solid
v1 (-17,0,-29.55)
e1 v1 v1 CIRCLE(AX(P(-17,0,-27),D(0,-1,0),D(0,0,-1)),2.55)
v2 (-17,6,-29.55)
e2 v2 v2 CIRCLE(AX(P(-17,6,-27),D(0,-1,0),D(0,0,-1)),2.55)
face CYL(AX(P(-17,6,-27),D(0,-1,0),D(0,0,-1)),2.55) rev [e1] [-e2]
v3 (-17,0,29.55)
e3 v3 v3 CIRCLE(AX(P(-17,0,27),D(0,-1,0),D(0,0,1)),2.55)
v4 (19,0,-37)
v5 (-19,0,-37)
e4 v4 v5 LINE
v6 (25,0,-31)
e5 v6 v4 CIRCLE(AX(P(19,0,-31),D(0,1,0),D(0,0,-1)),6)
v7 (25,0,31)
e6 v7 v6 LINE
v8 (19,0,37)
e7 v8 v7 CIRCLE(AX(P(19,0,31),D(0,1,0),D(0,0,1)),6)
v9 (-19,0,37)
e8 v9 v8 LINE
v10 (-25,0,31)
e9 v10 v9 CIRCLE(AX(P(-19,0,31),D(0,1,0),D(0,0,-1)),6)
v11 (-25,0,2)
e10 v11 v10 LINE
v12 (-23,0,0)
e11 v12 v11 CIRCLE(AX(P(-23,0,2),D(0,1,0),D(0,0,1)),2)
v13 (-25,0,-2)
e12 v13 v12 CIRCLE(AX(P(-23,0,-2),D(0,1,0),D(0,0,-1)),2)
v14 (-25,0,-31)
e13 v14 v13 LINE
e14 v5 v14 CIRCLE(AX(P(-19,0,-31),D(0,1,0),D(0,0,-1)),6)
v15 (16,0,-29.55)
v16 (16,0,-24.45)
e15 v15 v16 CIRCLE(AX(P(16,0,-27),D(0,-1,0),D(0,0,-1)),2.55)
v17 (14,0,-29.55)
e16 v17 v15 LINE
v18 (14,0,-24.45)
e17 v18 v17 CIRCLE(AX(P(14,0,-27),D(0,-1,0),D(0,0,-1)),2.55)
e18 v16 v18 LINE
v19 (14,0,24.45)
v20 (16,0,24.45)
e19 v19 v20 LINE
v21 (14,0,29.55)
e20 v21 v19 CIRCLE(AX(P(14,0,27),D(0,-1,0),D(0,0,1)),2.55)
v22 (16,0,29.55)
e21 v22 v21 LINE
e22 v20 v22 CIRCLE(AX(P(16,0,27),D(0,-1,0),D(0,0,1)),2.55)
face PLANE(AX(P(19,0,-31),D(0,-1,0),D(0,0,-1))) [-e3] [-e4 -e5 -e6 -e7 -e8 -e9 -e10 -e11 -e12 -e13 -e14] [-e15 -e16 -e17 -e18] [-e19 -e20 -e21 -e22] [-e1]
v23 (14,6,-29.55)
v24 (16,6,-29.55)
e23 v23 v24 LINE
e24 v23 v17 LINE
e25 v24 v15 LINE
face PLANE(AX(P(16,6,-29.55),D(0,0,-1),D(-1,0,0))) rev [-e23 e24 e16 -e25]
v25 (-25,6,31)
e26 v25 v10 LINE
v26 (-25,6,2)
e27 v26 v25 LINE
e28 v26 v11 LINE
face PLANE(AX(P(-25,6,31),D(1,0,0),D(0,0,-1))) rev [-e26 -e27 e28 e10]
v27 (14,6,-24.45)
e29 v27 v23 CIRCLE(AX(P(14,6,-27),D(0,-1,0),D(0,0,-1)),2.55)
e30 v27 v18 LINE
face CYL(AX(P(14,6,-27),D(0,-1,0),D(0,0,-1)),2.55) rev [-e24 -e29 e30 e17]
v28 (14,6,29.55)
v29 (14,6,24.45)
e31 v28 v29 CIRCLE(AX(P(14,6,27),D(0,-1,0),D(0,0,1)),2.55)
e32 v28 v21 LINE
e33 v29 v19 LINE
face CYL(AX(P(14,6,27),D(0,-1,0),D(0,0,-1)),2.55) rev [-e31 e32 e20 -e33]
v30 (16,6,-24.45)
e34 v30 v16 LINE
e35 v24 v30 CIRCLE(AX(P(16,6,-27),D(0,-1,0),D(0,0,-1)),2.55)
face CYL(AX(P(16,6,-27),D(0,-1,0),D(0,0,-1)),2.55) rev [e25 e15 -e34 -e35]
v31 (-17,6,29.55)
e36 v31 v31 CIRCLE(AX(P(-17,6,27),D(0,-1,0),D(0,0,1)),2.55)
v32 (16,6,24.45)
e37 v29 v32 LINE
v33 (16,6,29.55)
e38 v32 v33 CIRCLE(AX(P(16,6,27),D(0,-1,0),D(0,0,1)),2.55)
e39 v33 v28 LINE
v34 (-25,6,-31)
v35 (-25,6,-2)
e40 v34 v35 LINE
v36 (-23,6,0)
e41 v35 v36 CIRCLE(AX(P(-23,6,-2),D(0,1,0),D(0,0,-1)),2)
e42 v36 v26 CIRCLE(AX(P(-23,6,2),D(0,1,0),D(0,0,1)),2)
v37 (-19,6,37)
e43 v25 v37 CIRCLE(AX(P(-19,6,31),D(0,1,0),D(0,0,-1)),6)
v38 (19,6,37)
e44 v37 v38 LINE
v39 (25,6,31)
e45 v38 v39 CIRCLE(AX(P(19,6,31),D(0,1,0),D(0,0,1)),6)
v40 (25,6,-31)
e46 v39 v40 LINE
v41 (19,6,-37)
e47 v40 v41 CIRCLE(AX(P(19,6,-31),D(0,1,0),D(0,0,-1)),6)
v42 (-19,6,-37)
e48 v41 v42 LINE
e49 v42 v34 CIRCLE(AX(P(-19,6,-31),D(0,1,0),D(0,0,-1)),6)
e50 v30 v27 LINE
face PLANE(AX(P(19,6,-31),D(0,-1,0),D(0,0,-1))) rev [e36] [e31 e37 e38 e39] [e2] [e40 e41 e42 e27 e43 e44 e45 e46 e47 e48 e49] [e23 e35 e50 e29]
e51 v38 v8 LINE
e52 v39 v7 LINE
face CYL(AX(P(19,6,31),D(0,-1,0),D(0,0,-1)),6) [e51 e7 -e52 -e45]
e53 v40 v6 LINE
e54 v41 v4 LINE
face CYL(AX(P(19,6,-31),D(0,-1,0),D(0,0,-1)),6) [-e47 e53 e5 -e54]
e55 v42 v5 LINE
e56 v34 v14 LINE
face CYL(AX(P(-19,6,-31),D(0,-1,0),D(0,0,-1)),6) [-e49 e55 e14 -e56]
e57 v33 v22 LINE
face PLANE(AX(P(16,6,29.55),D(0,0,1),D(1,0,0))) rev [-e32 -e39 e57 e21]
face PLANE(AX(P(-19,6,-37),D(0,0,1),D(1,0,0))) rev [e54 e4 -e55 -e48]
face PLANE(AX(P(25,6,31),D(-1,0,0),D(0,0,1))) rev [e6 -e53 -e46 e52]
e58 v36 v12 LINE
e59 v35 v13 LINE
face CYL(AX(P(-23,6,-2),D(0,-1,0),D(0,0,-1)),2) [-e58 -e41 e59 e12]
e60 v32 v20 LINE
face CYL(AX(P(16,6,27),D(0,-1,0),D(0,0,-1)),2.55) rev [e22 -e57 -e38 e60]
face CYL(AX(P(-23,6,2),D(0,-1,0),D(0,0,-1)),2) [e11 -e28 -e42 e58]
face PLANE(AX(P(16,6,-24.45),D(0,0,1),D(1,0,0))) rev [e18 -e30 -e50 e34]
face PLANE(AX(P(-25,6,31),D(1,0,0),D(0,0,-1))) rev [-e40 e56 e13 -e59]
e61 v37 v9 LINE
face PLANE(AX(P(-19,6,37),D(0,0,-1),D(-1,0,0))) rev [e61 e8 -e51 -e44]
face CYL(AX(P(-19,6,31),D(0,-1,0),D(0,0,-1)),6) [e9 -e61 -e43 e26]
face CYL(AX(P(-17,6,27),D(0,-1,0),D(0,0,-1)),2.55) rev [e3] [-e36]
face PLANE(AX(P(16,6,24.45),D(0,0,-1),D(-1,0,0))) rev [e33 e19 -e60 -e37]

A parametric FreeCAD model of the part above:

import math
import FreeCAD as App
import Part
import Sketcher
from FreeCAD import Vector
Q = App.Units.Quantity

doc = App.newDocument("Part")
body = doc.addObject("PartDesign::Body", "Body")

sketch1 = body.newObject("Sketcher::SketchObject", "Sketch")
sketch1.AttachmentSupport = (doc.getObject("XZ_Plane"), [""])
sketch1.MapMode = "FlatFace"
sketch1.addGeometry(Part.LineSegment(Vector(-19, 37, 0), Vector(19, 37, 0)), False)
sketch1.addGeometry(Part.ArcOfCircle(Part.Circle(Vector(19, 31, 0), Vector(0, 0, 1), 6), math.radians(0), math.radians(90)), False)
sketch1.addGeometry(Part.LineSegment(Vector(25, 31, 0), Vector(25, -31, 0)), False)
sketch1.addGeometry(Part.ArcOfCircle(Part.Circle(Vector(19, -31, 0), Vector(0, 0, 1), 6), math.radians(-90), math.radians(0)), False)
sketch1.addGeometry(Part.LineSegment(Vector(19, -37, 0), Vector(-19, -37, 0)), False)
sketch1.addGeometry(Part.ArcOfCircle(Part.Circle(Vector(-19, -31, 0), Vector(0, 0, 1), 6), math.radians(180), math.radians(270)), False)
sketch1.addGeometry(Part.LineSegment(Vector(-25, -31, 0), Vector(-25, 31, 0)), False)
sketch1.addGeometry(Part.ArcOfCircle(Part.Circle(Vector(-19, 31, 0), Vector(0, 0, 1), 6), math.radians(90), math.radians(180)), False)
sketch1.addConstraint(Sketcher.Constraint("Tangent", 0, 2, 1, 2))
sketch1.addConstraint(Sketcher.Constraint("Tangent", 1, 1, 2, 1))
sketch1.addConstraint(Sketcher.Constraint("Tangent", 2, 2, 3, 2))
sketch1.addConstraint(Sketcher.Constraint("Tangent", 3, 1, 4, 1))
sketch1.addConstraint(Sketcher.Constraint("Tangent", 4, 2, 5, 2))
sketch1.addConstraint(Sketcher.Constraint("Tangent", 5, 1, 6, 1))
sketch1.addConstraint(Sketcher.Constraint("Tangent", 6, 2, 7, 2))
sketch1.addConstraint(Sketcher.Constraint("Tangent", 7, 1, 0, 1))
sketch1.addConstraint(Sketcher.Constraint("Horizontal", 0))
sketch1.addConstraint(Sketcher.Constraint("Vertical", 2))
sketch1.addConstraint(Sketcher.Constraint("Horizontal", 4))
sketch1.addConstraint(Sketcher.Constraint("Vertical", 6))
sketch1.addConstraint(Sketcher.Constraint("Equal", 1, 3))
sketch1.addConstraint(Sketcher.Constraint("Equal", 3, 5))
sketch1.addConstraint(Sketcher.Constraint("Equal", 5, 7))
sketch1.addConstraint(Sketcher.Constraint("Symmetric", 1, 3, 5, 3, -1, 1))
sketch1.addConstraint(Sketcher.Constraint("Radius", 1, Q("6 mm")))
sketch1.addConstraint(Sketcher.Constraint("DistanceX", 0, 1, 0, 2, Q("38 mm")))
sketch1.addConstraint(Sketcher.Constraint("DistanceY", 2, 2, 2, 1, Q("62 mm")))
pad1 = body.newObject("PartDesign::Pad", "Pad")
pad1.Profile = sketch1
pad1.Length = 6
pad1.Reversed = True

sketch2 = body.newObject("Sketcher::SketchObject", "Sketch001")
sketch2.AttachmentSupport = (doc.getObject("XZ_Plane"), [""])
sketch2.MapMode = "FlatFace"
sketch2.addGeometry(Part.Circle(Vector(-17, -27, 0), Vector(0, 0, 1), 2.5), False)
sketch2.addGeometry(Part.Circle(Vector(-17, 27, 0), Vector(0, 0, 1), 2.5), False)
sketch2.addGeometry(Part.LineSegment(Vector(14, -29.6, 0), Vector(16, -29.6, 0)), False)
sketch2.addGeometry(Part.ArcOfCircle(Part.Circle(Vector(16, -27, 0), Vector(0, 0, 1), 2.5), math.radians(-90), math.radians(90)), False)
sketch2.addGeometry(Part.LineSegment(Vector(16, -24.4, 0), Vector(14, -24.4, 0)), False)
sketch2.addGeometry(Part.ArcOfCircle(Part.Circle(Vector(14, -27, 0), Vector(0, 0, 1), 2.5), math.radians(90), math.radians(270)), False)
sketch2.addGeometry(Part.LineSegment(Vector(16, 29.6, 0), Vector(14, 29.6, 0)), False)
sketch2.addGeometry(Part.ArcOfCircle(Part.Circle(Vector(14, 27, 0), Vector(0, 0, 1), 2.5), math.radians(90), math.radians(270)), False)
sketch2.addGeometry(Part.LineSegment(Vector(14, 24.4, 0), Vector(16, 24.4, 0)), False)
sketch2.addGeometry(Part.ArcOfCircle(Part.Circle(Vector(16, 27, 0), Vector(0, 0, 1), 2.5), math.radians(-90), math.radians(90)), False)
sketch2.addConstraint(Sketcher.Constraint("Tangent", 2, 2, 3, 1))
sketch2.addConstraint(Sketcher.Constraint("Tangent", 3, 2, 4, 1))
sketch2.addConstraint(Sketcher.Constraint("Tangent", 4, 2, 5, 1))
sketch2.addConstraint(Sketcher.Constraint("Tangent", 5, 2, 2, 1))
sketch2.addConstraint(Sketcher.Constraint("Tangent", 6, 2, 7, 1))
sketch2.addConstraint(Sketcher.Constraint("Tangent", 7, 2, 8, 1))
sketch2.addConstraint(Sketcher.Constraint("Tangent", 8, 2, 9, 1))
sketch2.addConstraint(Sketcher.Constraint("Tangent", 9, 2, 6, 1))
sketch2.addConstraint(Sketcher.Constraint("Horizontal", 2))
sketch2.addConstraint(Sketcher.Constraint("Horizontal", 4))
sketch2.addConstraint(Sketcher.Constraint("Horizontal", 6))
sketch2.addConstraint(Sketcher.Constraint("Horizontal", 8))
sketch2.addConstraint(Sketcher.Constraint("Equal", 0, 1))
sketch2.addConstraint(Sketcher.Constraint("Equal", 1, 3))
sketch2.addConstraint(Sketcher.Constraint("Equal", 5, 7))
sketch2.addConstraint(Sketcher.Constraint("Symmetric", 0, 3, 1, 3, -1))
sketch2.addConstraint(Sketcher.Constraint("Symmetric", 5, 3, 7, 3, -1))
sketch2.addConstraint(Sketcher.Constraint("Horizontal", 0, 3, 3, 3))
sketch2.addConstraint(Sketcher.Constraint("Vertical", 3, 3, 9, 3))
sketch2.addConstraint(Sketcher.Constraint("Diameter", 0, Q("5.1 mm")))
sketch2.addConstraint(Sketcher.Constraint("DistanceX", 2, 1, 2, 2, Q("2 mm")))
sketch2.addConstraint(Sketcher.Constraint("DistanceX", 0, 3, -1, 1, Q("17 mm")))
sketch2.addConstraint(Sketcher.Constraint("DistanceY", 0, 3, -1, 1, Q("27 mm")))
sketch2.addConstraint(Sketcher.Constraint("DistanceX", -1, 1, 3, 3, Q("16 mm")))
pocket1 = body.newObject("PartDesign::Pocket", "Pocket")
pocket1.Profile = sketch2
pocket1.Type = "ThroughAll"

sketch3 = body.newObject("Sketcher::SketchObject", "Sketch002")
sketch3.AttachmentSupport = (doc.getObject("XZ_Plane"), [""])
sketch3.MapMode = "FlatFace"
sketch3.addGeometry(Part.LineSegment(Vector(-25, 2, 0), Vector(-25, -2, 0)), False)
sketch3.addGeometry(Part.ArcOfCircle(Part.Circle(Vector(-23, -2, 0), Vector(0, 0, 1), 2), math.radians(90), math.radians(180)), False)
sketch3.addGeometry(Part.ArcOfCircle(Part.Circle(Vector(-23, 2, 0), Vector(0, 0, 1), 2), math.radians(-180), math.radians(-90)), False)
sketch3.addConstraint(Sketcher.Constraint("Tangent", 0, 2, 1, 2))
sketch3.addConstraint(Sketcher.Constraint("Tangent", 1, 1, 2, 2))
sketch3.addConstraint(Sketcher.Constraint("Tangent", 2, 1, 0, 1))
sketch3.addConstraint(Sketcher.Constraint("Vertical", 0))
sketch3.addConstraint(Sketcher.Constraint("Equal", 1, 2))
sketch3.addConstraint(Sketcher.Constraint("PointOnObject", 1, 1, -1))
sketch3.addConstraint(Sketcher.Constraint("Radius", 1, Q("2 mm")))
sketch3.addConstraint(Sketcher.Constraint("DistanceX", 1, 3, -1, 1, Q("23 mm")))
pocket2 = body.newObject("PartDesign::Pocket", "Pocket001")
pocket2.Profile = sketch3
pocket2.Type = "ThroughAll"

doc.recompute()
